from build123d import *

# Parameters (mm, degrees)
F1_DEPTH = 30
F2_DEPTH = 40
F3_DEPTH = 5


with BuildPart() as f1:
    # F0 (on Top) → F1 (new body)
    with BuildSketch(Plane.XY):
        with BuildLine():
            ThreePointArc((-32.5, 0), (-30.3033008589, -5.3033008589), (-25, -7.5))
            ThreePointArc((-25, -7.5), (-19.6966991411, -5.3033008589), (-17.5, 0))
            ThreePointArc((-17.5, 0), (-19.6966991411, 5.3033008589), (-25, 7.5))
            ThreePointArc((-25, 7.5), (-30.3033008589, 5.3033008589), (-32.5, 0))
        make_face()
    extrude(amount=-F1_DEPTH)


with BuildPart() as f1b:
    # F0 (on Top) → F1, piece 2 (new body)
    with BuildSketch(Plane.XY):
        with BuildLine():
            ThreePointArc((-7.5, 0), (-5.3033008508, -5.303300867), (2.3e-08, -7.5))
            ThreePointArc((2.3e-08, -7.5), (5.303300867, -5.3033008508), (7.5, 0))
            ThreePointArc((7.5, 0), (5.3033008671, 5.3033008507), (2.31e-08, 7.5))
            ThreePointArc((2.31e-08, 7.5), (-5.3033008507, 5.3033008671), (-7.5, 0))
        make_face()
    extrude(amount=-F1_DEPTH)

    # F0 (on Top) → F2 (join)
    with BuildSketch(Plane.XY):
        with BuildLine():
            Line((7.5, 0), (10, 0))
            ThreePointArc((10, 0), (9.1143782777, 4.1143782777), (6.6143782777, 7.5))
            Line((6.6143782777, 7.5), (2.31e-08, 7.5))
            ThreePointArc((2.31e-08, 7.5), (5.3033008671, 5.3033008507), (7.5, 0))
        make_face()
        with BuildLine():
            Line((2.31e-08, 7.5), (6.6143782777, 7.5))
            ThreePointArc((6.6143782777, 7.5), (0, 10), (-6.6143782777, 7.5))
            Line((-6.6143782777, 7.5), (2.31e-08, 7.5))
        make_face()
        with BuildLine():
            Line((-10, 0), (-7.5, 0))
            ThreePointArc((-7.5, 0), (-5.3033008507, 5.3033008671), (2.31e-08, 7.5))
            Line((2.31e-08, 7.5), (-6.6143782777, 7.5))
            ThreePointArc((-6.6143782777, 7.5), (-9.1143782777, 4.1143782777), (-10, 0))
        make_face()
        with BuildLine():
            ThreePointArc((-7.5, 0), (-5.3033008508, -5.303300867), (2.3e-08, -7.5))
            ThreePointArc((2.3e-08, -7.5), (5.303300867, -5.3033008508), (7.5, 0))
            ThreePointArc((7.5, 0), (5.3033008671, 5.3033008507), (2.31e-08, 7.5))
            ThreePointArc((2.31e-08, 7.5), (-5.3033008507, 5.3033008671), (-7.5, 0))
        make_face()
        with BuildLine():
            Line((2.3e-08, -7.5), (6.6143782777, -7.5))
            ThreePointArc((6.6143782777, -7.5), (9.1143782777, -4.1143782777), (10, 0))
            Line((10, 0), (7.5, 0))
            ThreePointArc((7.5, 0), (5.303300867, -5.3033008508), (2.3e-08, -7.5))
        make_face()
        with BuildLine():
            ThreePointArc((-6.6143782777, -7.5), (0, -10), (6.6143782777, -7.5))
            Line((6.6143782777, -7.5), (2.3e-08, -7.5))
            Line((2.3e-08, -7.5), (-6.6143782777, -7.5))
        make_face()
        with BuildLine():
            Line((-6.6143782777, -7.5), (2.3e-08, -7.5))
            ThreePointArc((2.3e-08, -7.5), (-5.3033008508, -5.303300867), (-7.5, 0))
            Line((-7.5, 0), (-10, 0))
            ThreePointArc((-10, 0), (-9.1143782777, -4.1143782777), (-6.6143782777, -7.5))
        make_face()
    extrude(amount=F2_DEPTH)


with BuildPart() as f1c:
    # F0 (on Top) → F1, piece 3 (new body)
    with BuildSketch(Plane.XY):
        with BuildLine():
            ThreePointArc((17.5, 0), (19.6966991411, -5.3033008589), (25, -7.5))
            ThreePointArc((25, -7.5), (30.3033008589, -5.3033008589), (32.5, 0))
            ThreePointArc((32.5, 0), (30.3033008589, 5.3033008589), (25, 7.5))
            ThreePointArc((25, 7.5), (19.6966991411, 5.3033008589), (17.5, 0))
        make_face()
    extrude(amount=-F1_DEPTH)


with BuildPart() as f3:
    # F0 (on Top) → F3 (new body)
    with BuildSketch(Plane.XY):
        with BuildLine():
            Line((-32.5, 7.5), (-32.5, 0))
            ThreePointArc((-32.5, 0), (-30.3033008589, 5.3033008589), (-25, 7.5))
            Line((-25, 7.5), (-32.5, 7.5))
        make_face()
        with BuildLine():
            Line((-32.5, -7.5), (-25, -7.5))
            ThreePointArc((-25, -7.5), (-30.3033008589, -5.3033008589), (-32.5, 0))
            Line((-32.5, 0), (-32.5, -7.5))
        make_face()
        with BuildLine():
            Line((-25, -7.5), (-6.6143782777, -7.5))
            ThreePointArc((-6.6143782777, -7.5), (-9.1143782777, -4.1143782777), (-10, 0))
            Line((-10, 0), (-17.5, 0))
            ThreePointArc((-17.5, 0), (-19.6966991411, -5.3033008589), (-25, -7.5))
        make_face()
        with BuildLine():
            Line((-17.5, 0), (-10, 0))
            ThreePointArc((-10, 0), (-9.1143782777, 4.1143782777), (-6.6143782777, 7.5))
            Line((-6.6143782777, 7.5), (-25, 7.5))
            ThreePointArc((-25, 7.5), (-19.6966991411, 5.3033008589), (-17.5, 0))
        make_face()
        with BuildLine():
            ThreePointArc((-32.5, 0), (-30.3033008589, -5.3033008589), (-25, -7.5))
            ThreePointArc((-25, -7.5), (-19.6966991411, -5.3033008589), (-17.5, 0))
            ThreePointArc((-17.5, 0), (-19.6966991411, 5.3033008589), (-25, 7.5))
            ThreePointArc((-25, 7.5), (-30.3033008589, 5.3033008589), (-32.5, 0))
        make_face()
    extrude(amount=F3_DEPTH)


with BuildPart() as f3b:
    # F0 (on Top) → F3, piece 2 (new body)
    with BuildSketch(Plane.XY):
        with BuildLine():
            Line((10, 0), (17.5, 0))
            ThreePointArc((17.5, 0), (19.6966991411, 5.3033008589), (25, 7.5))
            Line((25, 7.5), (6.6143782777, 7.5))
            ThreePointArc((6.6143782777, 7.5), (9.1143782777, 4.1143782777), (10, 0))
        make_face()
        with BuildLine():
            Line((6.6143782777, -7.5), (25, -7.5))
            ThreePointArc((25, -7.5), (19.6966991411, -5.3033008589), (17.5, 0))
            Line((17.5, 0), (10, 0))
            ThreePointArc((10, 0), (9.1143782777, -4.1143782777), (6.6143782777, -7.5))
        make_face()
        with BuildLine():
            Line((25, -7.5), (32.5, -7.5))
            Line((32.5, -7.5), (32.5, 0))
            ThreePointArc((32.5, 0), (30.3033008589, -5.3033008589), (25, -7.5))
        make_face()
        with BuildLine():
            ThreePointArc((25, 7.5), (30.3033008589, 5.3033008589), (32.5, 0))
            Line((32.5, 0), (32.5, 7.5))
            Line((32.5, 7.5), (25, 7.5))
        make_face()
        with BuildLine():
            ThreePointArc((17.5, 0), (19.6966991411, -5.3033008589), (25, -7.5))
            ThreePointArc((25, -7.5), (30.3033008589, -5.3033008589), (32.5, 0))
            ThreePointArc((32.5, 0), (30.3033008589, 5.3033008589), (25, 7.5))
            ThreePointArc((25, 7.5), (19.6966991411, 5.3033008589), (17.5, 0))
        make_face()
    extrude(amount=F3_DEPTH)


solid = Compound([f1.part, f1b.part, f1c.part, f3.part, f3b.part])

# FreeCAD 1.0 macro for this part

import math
import FreeCAD as App
import Part
import Sketcher

V = App.Vector
Q = App.Units.Quantity

doc = App.newDocument("Part")
body = doc.addObject("PartDesign::Body", "Body")

sketch1 = body.newObject("Sketcher::SketchObject", "Sketch")
sketch1.AttachmentSupport = (doc.getObject("XY_Plane"), [""])
sketch1.MapMode = "FlatFace"
sketch1.addGeometry(Part.Circle(V(-25, 0, 0), V(0, 0, 1), 8), False)
sketch1.addConstraint(Sketcher.Constraint("PointOnObject", 0, 3, -1))
sketch1.addConstraint(Sketcher.Constraint("Diameter", 0, Q("15 mm")))
sketch1.addConstraint(Sketcher.Constraint("DistanceX", 0, 3, -1, 1, Q("25 mm")))
pad1 = body.newObject("PartDesign::Pad", "Pad")
pad1.Profile = sketch1
pad1.Length = 30
pad1.Reversed = True
body2 = doc.addObject("PartDesign::Body", "Body001")

sketch2 = body2.newObject("Sketcher::SketchObject", "Sketch001")
sketch2.AttachmentSupport = (doc.getObject("XY_Plane001"), [""])
sketch2.MapMode = "FlatFace"
sketch2.addGeometry(Part.Circle(V(0, 0, 0), V(0, 0, 1), 8), False)
sketch2.addConstraint(Sketcher.Constraint("Coincident", 0, 3, -1, 1))
sketch2.addConstraint(Sketcher.Constraint("Diameter", 0, Q("15 mm")))
pad2 = body2.newObject("PartDesign::Pad", "Pad001")
pad2.Profile = sketch2
pad2.Length = 30
pad2.Reversed = True

sketch3 = body2.newObject("Sketcher::SketchObject", "Sketch002")
sketch3.AttachmentSupport = (doc.getObject("XY_Plane001"), [""])
sketch3.MapMode = "FlatFace"
sketch3.addGeometry(Part.ArcOfCircle(Part.Circle(V(0, 0, 0), V(0, 0, 1), 10), math.radians(0), math.radians(49)), False)
sketch3.addGeometry(Part.ArcOfCircle(Part.Circle(V(0, 0, 0), V(0, 0, 1), 10), math.radians(49), math.radians(131)), False)
sketch3.addGeometry(Part.ArcOfCircle(Part.Circle(V(0, 0, 0), V(0, 0, 1), 10), math.radians(131), math.radians(180)), False)
sketch3.addGeometry(Part.ArcOfCircle(Part.Circle(V(0, 0, 0), V(0, 0, 1), 10), math.radians(180), math.radians(229)), False)
sketch3.addGeometry(Part.ArcOfCircle(Part.Circle(V(0, 0, 0), V(0, 0, 1), 10), math.radians(-131), math.radians(-49)), False)
sketch3.addGeometry(Part.ArcOfCircle(Part.Circle(V(0, 0, 0), V(0, 0, 1), 10), math.radians(-49), math.radians(0)), False)
sketch3.addConstraint(Sketcher.Constraint("Tangent", 0, 2, 1, 1))
sketch3.addConstraint(Sketcher.Constraint("Tangent", 1, 2, 2, 1))
sketch3.addConstraint(Sketcher.Constraint("Tangent", 2, 2, 3, 1))
sketch3.addConstraint(Sketcher.Constraint("Tangent", 3, 2, 4, 1))
sketch3.addConstraint(Sketcher.Constraint("Tangent", 4, 2, 5, 1))
sketch3.addConstraint(Sketcher.Constraint("Tangent", 5, 2, 0, 1))
sketch3.addConstraint(Sketcher.Constraint("Coincident", 0, 3, -1, 1))
sketch3.addConstraint(Sketcher.Constraint("Coincident", 2, 3, -1, 1))
sketch3.addConstraint(Sketcher.Constraint("Equal", 2, 3))
sketch3.addConstraint(Sketcher.Constraint("PointOnObject", 2, 2, -1))
sketch3.addConstraint(Sketcher.Constraint("PointOnObject", 5, 2, -1))
sketch3.addConstraint(Sketcher.Constraint("Horizontal", 0, 2, 1, 2))
sketch3.addConstraint(Sketcher.Constraint("Horizontal", 3, 2, 4, 2))
sketch3.addConstraint(Sketcher.Constraint("Vertical", 1, 2, 3, 2))
sketch3.addConstraint(Sketcher.Constraint("Radius", 0, Q("10 mm")))
sketch3.addConstraint(Sketcher.Constraint("DistanceY", -1, 1, 0, 2, Q("7.5 mm")))
pad3 = body2.newObject("PartDesign::Pad", "Pad002")
pad3.Profile = sketch3
pad3.Length = 40
body3 = doc.addObject("PartDesign::Body", "Body002")

sketch4 = body3.newObject("Sketcher::SketchObject", "Sketch003")
sketch4.AttachmentSupport = (doc.getObject("XY_Plane002"), [""])
sketch4.MapMode = "FlatFace"
sketch4.addGeometry(Part.Circle(V(25, 0, 0), V(0, 0, 1), 8), False)
sketch4.addConstraint(Sketcher.Constraint("PointOnObject", 0, 3, -1))
sketch4.addConstraint(Sketcher.Constraint("Diameter", 0, Q("15 mm")))
sketch4.addConstraint(Sketcher.Constraint("DistanceX", -1, 1, 0, 3, Q("25 mm")))
pad4 = body3.newObject("PartDesign::Pad", "Pad003")
pad4.Profile = sketch4
pad4.Length = 30
pad4.Reversed = True
body4 = doc.addObject("PartDesign::Body", "Body003")

sketch5 = body4.newObject("Sketcher::SketchObject", "Sketch004")
sketch5.AttachmentSupport = (doc.getObject("XY_Plane003"), [""])
sketch5.MapMode = "FlatFace"
sketch5.addGeometry(Part.LineSegment(V(-32, 8, 0), V(-32, -8, 0)), False)
sketch5.addGeometry(Part.LineSegment(V(-32, -8, 0), V(-7, -8, 0)), False)
sketch5.addGeometry(Part.ArcOfCircle(Part.Circle(V(0, 0, 0), V(0, 0, 1), 10), math.radians(180), math.radians(229)), False)
sketch5.addGeometry(Part.ArcOfCircle(Part.Circle(V(0, 0, 0), V(0, 0, 1), 10), math.radians(131), math.radians(180)), False)
sketch5.addGeometry(Part.LineSegment(V(-7, 8, 0), V(-32, 8, 0)), False)
sketch5.addConstraint(Sketcher.Constraint("Coincident", 0, 2, 1, 1))
sketch5.addConstraint(Sketcher.Constraint("Coincident", 1, 2, 2, 2))
sketch5.addConstraint(Sketcher.Constraint("Tangent", 2, 1, 3, 2))
sketch5.addConstraint(Sketcher.Constraint("Coincident", 3, 1, 4, 1))
sketch5.addConstraint(Sketcher.Constraint("Coincident", 4, 2, 0, 1))
sketch5.addConstraint(Sketcher.Constraint("Vertical", 0))
sketch5.addConstraint(Sketcher.Constraint("Horizontal", 1))
sketch5.addConstraint(Sketcher.Constraint("Horizontal", 4))
sketch5.addConstraint(Sketcher.Constraint("Coincident", 2, 3, -1, 1))
sketch5.addConstraint(Sketcher.Constraint("Equal", 2, 3))
sketch5.addConstraint(Sketcher.Constraint("PointOnObject", 2, 1, -1))
sketch5.addConstraint(Sketcher.Constraint("Vertical", 1, 2, 3, 1))
sketch5.addConstraint(Sketcher.Constraint("Radius", 2, Q("10 mm")))
sketch5.addConstraint(Sketcher.Constraint("DistanceY", 0, 2, 0, 1, Q("15 mm")))
sketch5.addConstraint(Sketcher.Constraint("DistanceX", 0, 2, -1, 1, Q("32.5 mm")))
pad5 = body4.newObject("PartDesign::Pad", "Pad004")
pad5.Profile = sketch5
pad5.Length = 5
body5 = doc.addObject("PartDesign::Body", "Body004")

sketch6 = body5.newObject("Sketcher::SketchObject", "Sketch005")
sketch6.AttachmentSupport = (doc.getObject("XY_Plane004"), [""])
sketch6.MapMode = "FlatFace"
sketch6.addGeometry(Part.ArcOfCircle(Part.Circle(V(0, 0, 0), V(0, 0, 1), 10), math.radians(0), math.radians(49)), False)
sketch6.addGeometry(Part.ArcOfCircle(Part.Circle(V(0, 0, 0), V(0, 0, 1), 10), math.radians(-49), math.radians(0)), False)
sketch6.addGeometry(Part.LineSegment(V(7, -8, 0), V(32, -8, 0)), False)
sketch6.addGeometry(Part.LineSegment(V(32, -8, 0), V(32, 8, 0)), False)
sketch6.addGeometry(Part.LineSegment(V(32, 8, 0), V(7, 8, 0)), False)
sketch6.addConstraint(Sketcher.Constraint("Tangent", 0, 1, 1, 2))
sketch6.addConstraint(Sketcher.Constraint("Coincident", 1, 1, 2, 1))
sketch6.addConstraint(Sketcher.Constraint("Coincident", 2, 2, 3, 1))
sketch6.addConstraint(Sketcher.Constraint("Coincident", 3, 2, 4, 1))
sketch6.addConstraint(Sketcher.Constraint("Coincident", 4, 2, 0, 2))
sketch6.addConstraint(Sketcher.Constraint("Horizontal", 2))
sketch6.addConstraint(Sketcher.Constraint("Vertical", 3))
sketch6.addConstraint(Sketcher.Constraint("Horizontal", 4))
sketch6.addConstraint(Sketcher.Constraint("Coincident", 0, 3, -1, 1))
sketch6.addConstraint(Sketcher.Constraint("Equal", 0, 1))
sketch6.addConstraint(Sketcher.Constraint("PointOnObject", 0, 1, -1))
sketch6.addConstraint(Sketcher.Constraint("Vertical", 1, 1, 4, 2))
sketch6.addConstraint(Sketcher.Constraint("Radius", 0, Q("10 mm")))
sketch6.addConstraint(Sketcher.Constraint("DistanceY", 3, 1, 3, 2, Q("15 mm")))
sketch6.addConstraint(Sketcher.Constraint("DistanceX", -1, 1, 2, 2, Q("32.5 mm")))
pad6 = body5.newObject("PartDesign::Pad", "Pad005")
pad6.Profile = sketch6
pad6.Length = 5

doc.recompute()
